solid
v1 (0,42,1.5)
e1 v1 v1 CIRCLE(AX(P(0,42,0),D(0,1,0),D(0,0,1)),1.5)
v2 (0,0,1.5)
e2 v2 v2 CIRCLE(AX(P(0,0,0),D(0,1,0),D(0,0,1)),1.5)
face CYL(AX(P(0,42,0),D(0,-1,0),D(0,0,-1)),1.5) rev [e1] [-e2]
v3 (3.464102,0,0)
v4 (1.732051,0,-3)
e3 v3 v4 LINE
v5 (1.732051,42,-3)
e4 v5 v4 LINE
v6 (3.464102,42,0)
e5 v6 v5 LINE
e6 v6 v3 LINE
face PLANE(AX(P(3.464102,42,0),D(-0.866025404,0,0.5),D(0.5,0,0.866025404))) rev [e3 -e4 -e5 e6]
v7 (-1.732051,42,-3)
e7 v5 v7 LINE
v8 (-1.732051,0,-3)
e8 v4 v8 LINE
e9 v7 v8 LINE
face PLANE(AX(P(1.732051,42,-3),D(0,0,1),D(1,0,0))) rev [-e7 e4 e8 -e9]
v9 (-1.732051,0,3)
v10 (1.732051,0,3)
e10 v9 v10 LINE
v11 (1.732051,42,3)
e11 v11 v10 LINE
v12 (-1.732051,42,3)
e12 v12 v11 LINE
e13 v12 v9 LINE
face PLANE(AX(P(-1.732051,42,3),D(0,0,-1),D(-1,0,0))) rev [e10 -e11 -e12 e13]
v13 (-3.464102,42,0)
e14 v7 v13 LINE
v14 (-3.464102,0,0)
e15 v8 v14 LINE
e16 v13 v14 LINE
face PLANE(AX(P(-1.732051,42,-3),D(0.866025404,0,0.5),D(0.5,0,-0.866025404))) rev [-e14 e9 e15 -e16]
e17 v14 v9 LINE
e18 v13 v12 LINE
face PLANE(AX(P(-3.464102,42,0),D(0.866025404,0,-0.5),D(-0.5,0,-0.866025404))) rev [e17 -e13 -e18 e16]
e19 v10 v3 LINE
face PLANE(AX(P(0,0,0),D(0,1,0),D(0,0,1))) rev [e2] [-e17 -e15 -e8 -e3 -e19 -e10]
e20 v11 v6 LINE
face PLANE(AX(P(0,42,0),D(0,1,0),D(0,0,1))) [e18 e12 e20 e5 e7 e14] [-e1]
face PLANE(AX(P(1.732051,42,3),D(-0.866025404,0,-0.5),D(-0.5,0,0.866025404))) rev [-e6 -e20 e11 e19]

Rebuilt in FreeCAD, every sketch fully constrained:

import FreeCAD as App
import Part
import Sketcher
from FreeCAD import Vector
Q = App.Units.Quantity


def add_polygon(sketch, points):
    """Adds a closed chain of lines whose ends are joined by coincident constraints."""
    first, n = sketch.GeometryCount, len(points)
    for a, b in zip(points, points[1:] + points[:1]):
        sketch.addGeometry(Part.LineSegment(App.Vector(*a, 0), App.Vector(*b, 0)), False)
    for i in range(n):
        sketch.addConstraint(Sketcher.Constraint("Coincident", first + i, 2, first + (i + 1) % n, 1))

doc = App.newDocument("Part")
body = doc.addObject("PartDesign::Body", "Body")

sketch1 = body.newObject("Sketcher::SketchObject", "Sketch")
sketch1.AttachmentSupport = (doc.getObject("XZ_Plane"), [""])
sketch1.MapMode = "FlatFace"
add_polygon(sketch1, [(1.7, -3), (-1.7, -3), (-3.5, 0), (-1.7, 3), (1.7, 3), (3.5, 0)])
sketch1.addGeometry(Part.Circle(Vector(0, 0, 0), Vector(0, 0, 1), 1.5), False)
sketch1.addConstraint([
    Sketcher.Constraint("Horizontal", 0),
    Sketcher.Constraint("Horizontal", 3),
    Sketcher.Constraint("Coincident", 6, 3, -1, 1),
    Sketcher.Constraint("Symmetric", 0, 2, 3, 2, -1, 1),
    Sketcher.Constraint("Symmetric", 1, 2, 4, 2, -1, 1),
    Sketcher.Constraint("PointOnObject", 1, 2, -1),
    Sketcher.Constraint("Parallel", 2, 5),
    Sketcher.Constraint("Vertical", 0, 2, 2, 2),
    Sketcher.Constraint("Diameter", 6, Q("3 mm")),
    Sketcher.Constraint("Angle", 1, Q("120 deg")),
    Sketcher.Constraint("DistanceY", 0, 2, -1, 1, Q("3 mm")),
    Sketcher.Constraint("DistanceX", 0, 2, 0, 1, Q("3.464102 mm")),
])
pad1 = body.newObject("PartDesign::Pad", "Pad")
pad1.Profile = sketch1
pad1.Length = 42
pad1.Reversed = True

doc.recompute()
